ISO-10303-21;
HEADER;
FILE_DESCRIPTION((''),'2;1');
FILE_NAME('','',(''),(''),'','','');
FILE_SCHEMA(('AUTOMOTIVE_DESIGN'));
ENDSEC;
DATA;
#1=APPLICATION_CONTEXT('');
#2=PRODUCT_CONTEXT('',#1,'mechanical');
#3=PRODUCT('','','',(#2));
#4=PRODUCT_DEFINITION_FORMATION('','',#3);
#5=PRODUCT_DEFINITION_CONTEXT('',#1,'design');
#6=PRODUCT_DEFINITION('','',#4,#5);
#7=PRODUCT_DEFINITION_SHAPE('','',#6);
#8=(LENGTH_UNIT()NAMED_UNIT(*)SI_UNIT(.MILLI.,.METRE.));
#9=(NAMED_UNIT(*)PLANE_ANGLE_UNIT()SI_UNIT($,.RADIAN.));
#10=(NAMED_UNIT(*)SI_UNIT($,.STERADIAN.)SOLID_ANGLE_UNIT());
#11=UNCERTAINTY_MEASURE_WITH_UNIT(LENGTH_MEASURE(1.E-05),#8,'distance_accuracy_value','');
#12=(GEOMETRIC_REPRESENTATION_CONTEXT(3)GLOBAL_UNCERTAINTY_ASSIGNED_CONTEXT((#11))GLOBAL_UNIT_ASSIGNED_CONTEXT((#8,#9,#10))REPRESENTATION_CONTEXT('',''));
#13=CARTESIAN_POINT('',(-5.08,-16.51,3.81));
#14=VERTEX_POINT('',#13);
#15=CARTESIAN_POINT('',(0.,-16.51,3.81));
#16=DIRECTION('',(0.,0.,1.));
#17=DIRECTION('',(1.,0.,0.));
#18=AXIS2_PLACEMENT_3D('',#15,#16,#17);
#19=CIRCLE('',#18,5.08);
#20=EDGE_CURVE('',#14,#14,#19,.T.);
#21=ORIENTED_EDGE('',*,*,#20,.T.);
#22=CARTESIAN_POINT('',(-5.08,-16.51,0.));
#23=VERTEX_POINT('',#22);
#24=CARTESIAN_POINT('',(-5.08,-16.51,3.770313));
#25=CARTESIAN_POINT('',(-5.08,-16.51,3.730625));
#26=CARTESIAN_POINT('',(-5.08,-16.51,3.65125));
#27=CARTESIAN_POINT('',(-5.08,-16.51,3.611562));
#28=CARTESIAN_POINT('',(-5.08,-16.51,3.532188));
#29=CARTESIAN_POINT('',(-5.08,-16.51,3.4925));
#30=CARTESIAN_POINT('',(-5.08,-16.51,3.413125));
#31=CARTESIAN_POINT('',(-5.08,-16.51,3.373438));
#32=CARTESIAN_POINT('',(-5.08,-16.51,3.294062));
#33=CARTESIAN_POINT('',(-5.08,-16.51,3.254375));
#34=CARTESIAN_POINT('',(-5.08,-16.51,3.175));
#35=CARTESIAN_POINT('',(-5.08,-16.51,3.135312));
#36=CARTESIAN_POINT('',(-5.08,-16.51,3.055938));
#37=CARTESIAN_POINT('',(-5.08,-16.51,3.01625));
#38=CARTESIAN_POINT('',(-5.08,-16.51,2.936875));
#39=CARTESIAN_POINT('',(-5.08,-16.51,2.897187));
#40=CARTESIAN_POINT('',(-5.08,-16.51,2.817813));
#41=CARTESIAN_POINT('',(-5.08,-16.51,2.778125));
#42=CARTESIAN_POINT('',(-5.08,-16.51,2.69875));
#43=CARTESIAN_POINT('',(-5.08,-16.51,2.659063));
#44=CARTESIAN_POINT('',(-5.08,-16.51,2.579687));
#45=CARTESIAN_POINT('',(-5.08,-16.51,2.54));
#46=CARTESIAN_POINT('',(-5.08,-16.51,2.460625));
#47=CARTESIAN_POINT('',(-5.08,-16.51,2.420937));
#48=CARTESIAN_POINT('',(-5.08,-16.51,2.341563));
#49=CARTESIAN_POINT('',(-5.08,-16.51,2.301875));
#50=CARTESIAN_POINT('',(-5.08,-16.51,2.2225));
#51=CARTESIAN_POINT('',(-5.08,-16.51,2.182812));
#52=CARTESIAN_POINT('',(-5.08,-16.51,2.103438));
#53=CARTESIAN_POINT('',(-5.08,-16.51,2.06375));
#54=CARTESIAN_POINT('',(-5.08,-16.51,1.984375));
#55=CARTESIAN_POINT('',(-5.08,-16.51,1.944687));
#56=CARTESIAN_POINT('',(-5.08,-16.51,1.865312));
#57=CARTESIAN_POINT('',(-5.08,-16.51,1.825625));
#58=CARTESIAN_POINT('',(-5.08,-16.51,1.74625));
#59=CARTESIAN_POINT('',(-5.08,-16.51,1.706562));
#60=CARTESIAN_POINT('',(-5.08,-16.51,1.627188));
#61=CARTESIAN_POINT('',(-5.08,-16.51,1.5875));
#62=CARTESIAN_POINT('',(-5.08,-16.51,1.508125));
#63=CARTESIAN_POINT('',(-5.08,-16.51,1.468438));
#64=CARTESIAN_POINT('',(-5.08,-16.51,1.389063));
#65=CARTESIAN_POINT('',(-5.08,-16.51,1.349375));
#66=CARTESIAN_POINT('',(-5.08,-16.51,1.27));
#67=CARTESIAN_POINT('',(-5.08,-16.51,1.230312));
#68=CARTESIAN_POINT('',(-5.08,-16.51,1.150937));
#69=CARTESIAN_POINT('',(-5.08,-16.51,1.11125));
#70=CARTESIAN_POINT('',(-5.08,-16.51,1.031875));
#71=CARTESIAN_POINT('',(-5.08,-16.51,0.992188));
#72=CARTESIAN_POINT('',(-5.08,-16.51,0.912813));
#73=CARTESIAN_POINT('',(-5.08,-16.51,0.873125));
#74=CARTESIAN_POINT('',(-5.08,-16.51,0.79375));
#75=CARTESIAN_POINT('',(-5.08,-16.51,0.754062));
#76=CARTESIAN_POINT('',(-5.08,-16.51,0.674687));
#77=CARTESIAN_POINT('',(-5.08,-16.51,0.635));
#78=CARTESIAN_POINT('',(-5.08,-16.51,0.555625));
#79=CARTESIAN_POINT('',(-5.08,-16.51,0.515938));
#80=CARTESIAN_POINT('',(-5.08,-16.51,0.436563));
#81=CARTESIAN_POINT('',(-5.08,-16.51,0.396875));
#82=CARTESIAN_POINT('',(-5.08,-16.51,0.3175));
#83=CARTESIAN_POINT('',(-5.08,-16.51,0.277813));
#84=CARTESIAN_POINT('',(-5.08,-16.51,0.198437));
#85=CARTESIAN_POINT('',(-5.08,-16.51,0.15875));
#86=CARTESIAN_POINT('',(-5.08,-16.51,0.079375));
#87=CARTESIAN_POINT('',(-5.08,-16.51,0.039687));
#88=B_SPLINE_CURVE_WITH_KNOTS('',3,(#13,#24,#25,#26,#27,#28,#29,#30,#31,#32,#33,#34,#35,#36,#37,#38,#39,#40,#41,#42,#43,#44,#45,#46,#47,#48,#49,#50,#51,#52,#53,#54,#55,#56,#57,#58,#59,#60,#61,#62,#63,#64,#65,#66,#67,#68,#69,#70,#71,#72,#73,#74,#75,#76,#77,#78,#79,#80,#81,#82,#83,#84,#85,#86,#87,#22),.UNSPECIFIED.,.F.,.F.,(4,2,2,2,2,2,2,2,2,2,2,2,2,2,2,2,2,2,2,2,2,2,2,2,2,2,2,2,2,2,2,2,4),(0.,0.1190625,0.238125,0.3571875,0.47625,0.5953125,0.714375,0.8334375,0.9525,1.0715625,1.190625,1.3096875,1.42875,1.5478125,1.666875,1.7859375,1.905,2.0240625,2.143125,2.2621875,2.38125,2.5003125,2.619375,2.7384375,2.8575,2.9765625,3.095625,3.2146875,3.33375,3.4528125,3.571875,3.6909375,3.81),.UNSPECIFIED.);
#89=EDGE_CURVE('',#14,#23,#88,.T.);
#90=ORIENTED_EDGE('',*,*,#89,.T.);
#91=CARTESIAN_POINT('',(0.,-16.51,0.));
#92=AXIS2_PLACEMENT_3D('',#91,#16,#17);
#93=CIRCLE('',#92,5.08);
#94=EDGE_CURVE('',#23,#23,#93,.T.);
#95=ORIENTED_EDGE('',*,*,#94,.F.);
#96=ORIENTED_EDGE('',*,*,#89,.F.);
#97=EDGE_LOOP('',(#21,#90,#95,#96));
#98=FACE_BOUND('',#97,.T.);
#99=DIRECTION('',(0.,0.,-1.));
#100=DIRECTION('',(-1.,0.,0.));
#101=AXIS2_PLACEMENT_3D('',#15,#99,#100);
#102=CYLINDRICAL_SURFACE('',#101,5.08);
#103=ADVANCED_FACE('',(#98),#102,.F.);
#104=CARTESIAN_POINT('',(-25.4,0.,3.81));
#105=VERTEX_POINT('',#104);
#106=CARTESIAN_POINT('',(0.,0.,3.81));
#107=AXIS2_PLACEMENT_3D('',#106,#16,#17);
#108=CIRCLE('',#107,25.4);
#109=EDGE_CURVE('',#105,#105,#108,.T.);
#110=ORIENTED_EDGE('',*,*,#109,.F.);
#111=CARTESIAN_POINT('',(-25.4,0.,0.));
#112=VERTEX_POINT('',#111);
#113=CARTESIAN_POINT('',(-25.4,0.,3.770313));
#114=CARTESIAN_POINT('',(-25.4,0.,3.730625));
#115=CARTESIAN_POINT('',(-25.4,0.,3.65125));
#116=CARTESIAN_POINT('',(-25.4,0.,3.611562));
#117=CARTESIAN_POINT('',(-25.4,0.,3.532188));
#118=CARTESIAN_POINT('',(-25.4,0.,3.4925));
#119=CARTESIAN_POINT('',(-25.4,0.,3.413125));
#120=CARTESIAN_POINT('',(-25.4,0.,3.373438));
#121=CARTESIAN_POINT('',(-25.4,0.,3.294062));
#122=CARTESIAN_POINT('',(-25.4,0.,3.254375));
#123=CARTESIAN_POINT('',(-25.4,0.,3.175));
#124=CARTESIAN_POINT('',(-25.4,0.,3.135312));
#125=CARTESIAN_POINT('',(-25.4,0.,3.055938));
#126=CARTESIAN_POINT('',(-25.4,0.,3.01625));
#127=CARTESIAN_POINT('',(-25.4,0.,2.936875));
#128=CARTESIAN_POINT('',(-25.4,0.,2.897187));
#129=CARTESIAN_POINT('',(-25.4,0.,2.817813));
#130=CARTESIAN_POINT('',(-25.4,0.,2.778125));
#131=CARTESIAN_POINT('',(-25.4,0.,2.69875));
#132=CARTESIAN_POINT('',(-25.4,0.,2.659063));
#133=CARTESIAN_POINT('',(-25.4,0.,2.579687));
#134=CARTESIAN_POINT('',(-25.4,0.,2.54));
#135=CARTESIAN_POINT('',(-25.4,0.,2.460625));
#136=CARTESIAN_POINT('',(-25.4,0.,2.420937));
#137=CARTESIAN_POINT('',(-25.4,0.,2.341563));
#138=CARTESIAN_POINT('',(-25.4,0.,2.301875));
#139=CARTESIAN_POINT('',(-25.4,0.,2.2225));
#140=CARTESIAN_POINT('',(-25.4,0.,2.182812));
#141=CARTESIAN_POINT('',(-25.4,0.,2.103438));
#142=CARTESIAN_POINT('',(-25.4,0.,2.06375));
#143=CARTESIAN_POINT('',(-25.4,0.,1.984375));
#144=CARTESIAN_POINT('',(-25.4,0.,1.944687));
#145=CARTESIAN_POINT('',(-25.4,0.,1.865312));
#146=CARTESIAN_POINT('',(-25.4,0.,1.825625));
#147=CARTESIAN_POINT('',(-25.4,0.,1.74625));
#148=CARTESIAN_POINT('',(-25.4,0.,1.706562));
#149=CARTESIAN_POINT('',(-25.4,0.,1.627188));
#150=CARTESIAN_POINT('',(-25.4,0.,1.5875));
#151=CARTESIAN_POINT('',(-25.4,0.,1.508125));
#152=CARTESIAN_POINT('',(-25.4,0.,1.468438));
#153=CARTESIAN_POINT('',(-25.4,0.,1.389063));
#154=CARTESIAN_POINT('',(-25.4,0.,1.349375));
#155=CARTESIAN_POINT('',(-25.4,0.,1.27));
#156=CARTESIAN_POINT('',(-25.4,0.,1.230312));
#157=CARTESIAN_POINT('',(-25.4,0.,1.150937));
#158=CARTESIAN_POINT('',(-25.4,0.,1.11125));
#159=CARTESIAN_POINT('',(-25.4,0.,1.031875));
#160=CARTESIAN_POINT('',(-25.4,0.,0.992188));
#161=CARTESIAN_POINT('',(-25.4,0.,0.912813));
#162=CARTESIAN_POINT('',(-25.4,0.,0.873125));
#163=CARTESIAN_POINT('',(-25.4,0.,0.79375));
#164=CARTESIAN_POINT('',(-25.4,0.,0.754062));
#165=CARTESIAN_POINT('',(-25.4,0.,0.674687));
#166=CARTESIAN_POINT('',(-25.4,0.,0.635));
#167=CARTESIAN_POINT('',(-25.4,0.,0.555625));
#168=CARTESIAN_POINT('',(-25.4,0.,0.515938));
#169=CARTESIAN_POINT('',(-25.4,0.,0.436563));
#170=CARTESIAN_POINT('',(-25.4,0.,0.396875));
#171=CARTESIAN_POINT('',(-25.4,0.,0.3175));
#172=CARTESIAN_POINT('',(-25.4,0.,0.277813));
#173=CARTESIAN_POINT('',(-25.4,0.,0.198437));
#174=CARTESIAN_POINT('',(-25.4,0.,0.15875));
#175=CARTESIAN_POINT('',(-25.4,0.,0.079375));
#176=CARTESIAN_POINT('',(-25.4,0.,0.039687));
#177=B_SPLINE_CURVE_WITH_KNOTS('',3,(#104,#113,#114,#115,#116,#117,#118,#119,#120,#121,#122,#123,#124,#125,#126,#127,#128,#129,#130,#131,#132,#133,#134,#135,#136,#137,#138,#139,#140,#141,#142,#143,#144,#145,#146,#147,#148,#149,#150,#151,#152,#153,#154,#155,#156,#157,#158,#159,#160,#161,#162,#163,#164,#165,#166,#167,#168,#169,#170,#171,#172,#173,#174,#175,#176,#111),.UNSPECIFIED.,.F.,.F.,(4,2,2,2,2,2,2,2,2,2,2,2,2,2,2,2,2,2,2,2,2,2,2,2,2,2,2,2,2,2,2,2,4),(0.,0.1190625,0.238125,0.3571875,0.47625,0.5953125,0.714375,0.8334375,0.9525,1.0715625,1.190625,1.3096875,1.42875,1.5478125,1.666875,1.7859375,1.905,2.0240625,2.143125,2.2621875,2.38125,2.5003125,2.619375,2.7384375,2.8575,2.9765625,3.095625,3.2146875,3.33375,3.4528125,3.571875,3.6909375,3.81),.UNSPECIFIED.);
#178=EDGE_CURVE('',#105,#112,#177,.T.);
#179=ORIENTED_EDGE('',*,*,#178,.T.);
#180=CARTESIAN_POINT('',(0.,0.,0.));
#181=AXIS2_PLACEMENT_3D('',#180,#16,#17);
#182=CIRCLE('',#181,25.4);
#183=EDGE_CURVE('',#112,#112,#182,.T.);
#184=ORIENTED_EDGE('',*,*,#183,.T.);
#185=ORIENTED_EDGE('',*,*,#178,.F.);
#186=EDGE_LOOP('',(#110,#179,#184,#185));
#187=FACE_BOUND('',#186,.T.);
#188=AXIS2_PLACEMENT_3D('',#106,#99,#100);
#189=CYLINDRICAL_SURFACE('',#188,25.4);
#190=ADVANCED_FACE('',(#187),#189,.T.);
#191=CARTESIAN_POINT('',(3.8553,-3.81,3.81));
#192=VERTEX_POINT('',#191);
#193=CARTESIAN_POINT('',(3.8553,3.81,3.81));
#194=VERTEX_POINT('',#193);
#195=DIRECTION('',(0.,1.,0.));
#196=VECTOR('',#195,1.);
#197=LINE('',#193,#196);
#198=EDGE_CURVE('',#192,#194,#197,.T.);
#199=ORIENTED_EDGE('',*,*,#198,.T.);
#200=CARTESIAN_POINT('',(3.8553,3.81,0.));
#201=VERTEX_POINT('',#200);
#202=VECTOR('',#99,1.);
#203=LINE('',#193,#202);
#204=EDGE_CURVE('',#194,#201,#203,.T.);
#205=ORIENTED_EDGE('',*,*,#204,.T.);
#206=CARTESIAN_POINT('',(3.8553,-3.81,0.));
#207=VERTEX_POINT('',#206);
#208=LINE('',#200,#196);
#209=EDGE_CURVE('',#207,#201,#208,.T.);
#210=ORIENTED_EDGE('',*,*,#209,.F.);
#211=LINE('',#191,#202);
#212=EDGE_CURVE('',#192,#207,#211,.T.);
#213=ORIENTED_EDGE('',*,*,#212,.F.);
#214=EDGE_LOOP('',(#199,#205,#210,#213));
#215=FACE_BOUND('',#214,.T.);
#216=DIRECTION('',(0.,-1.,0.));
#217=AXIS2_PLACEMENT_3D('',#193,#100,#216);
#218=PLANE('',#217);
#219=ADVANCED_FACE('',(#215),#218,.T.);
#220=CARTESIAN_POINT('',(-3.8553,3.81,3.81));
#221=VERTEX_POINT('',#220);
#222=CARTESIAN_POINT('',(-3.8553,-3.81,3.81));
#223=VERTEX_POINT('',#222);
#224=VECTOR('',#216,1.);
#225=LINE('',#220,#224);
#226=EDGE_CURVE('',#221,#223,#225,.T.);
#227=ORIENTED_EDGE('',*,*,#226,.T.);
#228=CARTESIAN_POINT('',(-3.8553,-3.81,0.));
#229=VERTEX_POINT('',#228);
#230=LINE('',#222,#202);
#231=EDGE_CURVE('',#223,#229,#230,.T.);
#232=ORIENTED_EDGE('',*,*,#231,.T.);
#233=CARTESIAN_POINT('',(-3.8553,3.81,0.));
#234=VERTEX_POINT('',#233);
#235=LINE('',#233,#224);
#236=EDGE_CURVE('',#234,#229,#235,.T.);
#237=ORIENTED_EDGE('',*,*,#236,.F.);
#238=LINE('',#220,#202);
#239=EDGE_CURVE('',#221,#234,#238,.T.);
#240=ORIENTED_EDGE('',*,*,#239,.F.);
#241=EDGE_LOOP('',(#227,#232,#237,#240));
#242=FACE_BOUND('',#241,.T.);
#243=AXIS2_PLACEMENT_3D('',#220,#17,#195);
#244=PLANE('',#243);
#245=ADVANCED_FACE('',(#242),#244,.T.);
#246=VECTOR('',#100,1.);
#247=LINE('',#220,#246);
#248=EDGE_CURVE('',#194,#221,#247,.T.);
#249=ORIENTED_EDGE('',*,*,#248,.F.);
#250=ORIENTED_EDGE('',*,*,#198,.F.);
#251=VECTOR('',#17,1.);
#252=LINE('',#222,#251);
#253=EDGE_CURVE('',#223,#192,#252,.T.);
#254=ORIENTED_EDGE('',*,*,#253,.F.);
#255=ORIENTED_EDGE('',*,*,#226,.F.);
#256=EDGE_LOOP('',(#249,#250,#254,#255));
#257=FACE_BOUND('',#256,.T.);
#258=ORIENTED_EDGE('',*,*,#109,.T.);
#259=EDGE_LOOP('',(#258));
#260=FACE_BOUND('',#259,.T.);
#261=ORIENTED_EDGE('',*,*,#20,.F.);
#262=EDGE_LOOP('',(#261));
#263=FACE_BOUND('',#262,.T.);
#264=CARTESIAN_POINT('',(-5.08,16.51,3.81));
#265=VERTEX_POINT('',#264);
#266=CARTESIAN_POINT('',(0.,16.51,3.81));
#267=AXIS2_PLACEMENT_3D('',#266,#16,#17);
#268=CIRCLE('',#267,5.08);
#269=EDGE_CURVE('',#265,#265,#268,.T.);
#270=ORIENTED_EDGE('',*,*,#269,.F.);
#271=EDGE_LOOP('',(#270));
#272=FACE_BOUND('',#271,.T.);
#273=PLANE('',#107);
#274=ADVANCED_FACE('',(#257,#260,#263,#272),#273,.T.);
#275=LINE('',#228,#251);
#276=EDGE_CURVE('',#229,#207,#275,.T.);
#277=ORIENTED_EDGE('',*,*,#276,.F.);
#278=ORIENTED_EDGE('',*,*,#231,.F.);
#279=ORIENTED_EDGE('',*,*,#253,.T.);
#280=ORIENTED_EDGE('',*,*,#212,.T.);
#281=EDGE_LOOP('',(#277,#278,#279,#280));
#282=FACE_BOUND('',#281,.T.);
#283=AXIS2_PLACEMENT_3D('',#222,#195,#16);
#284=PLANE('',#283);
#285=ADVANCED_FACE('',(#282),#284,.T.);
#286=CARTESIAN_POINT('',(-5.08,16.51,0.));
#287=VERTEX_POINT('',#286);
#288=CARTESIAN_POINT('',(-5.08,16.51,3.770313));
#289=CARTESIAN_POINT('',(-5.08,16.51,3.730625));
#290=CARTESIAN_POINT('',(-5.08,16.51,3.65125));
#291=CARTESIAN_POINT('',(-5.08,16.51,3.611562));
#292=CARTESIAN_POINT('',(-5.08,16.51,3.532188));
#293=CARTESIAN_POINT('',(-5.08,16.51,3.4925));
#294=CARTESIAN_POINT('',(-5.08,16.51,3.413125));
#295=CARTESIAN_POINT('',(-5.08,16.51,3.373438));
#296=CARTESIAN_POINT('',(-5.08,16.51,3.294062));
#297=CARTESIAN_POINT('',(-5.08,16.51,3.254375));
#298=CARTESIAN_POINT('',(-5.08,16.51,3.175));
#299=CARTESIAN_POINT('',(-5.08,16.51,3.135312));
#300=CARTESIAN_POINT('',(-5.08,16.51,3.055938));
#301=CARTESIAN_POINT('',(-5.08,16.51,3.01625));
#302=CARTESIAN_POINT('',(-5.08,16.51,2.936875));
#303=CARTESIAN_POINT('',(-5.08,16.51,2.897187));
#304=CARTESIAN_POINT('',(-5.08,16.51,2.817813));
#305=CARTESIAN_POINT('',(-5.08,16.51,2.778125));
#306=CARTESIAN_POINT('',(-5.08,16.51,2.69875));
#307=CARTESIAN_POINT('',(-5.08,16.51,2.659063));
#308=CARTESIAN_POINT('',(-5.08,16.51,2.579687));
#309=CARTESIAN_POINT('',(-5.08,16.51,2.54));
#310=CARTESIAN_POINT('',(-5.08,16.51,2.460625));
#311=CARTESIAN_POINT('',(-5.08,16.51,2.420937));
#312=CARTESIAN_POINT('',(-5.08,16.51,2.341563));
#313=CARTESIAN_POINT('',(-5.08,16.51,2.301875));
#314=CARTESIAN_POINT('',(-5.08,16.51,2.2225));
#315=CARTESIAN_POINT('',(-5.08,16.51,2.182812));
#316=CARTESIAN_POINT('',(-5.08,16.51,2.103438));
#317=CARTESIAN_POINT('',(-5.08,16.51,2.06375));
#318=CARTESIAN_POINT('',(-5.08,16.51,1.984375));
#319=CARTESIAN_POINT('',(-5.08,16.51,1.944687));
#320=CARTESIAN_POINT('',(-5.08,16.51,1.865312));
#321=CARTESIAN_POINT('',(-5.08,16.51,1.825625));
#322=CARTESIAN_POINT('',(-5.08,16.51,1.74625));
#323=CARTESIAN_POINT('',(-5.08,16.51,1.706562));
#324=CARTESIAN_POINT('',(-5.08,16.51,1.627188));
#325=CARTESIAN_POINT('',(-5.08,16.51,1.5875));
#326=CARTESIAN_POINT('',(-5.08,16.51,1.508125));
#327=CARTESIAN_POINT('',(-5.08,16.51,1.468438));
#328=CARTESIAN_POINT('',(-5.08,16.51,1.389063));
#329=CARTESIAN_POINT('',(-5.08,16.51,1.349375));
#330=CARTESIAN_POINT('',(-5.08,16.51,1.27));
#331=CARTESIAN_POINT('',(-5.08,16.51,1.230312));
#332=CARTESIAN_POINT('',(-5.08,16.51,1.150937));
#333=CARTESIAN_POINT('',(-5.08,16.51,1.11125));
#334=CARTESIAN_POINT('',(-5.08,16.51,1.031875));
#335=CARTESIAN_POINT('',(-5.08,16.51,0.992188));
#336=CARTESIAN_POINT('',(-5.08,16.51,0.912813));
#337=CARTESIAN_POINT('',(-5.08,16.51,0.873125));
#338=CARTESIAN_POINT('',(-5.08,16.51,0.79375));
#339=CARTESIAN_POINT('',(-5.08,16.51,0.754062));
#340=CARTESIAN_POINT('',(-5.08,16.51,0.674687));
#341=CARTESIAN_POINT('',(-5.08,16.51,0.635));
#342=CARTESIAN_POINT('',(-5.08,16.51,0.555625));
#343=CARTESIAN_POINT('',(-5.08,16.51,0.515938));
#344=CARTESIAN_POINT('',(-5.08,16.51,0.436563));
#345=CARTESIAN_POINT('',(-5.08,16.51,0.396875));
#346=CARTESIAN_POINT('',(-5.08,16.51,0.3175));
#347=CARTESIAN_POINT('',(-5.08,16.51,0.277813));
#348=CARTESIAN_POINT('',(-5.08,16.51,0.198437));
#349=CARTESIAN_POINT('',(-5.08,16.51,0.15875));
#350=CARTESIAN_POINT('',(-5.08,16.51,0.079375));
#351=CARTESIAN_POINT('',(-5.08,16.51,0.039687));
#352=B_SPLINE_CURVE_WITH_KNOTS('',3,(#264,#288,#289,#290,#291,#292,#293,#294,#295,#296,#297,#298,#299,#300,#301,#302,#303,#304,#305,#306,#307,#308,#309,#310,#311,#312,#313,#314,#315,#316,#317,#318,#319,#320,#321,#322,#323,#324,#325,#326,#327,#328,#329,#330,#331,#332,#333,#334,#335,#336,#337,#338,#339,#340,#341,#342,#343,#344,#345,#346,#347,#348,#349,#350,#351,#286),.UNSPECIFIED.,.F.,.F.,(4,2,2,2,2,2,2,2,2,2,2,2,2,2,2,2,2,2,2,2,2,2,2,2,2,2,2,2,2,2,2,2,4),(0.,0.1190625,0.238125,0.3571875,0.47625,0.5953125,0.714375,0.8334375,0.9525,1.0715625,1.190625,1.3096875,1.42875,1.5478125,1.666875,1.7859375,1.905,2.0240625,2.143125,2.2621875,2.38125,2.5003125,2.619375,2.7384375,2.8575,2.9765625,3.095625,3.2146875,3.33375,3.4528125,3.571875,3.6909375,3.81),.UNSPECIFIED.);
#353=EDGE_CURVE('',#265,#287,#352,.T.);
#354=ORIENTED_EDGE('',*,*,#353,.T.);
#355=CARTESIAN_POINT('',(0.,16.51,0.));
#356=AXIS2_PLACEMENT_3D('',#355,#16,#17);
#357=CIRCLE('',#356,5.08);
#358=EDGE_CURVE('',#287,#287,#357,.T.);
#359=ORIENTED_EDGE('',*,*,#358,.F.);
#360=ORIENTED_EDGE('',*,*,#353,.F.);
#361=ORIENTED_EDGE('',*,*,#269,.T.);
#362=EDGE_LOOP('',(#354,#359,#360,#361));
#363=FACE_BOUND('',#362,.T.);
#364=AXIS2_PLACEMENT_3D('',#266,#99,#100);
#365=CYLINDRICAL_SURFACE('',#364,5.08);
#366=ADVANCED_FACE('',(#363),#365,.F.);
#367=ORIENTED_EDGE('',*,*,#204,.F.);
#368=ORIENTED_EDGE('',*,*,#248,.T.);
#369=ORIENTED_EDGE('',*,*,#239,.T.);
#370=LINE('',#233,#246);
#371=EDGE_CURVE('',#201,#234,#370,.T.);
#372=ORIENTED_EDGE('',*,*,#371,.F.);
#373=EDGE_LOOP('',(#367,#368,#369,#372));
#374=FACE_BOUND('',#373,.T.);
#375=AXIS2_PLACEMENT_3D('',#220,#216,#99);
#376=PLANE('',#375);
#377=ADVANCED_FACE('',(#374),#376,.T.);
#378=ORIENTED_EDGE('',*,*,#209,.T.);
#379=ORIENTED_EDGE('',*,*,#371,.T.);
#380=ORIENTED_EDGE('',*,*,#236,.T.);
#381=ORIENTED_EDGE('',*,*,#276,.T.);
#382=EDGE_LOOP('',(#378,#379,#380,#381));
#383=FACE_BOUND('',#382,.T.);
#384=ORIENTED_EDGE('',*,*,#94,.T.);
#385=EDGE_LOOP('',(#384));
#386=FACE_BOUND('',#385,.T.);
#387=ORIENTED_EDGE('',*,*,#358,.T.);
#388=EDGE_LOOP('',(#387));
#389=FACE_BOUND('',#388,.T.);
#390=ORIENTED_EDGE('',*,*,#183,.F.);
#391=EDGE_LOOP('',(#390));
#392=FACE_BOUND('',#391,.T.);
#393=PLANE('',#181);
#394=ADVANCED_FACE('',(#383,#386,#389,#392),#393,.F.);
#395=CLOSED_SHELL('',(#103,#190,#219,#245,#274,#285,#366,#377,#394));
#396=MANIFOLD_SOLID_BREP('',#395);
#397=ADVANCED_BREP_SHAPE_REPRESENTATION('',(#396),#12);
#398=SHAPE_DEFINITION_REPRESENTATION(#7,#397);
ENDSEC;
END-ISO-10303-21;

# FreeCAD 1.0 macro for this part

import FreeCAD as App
import Part
import Sketcher
Q = App.Units.Quantity

doc = App.newDocument("Part")
params = doc.addObject("Spreadsheet::Sheet", "Params")
for row, (alias, value) in enumerate([
    ("sketch1_diameter", "2 in"),
    ("sketch1_diameter2", "0.4 in"),
    ("sketch1_height", "0.3 in"),
    ("pad1_length", "0.15 in"),
], start=1):
    params.set(f"A{row}", alias)
    params.set(f"B{row}", "=" + value)
    params.setAlias(f"B{row}", alias)

body = doc.addObject("PartDesign::Body", "Body")

# Sketch on XY plane
sketch1 = body.newObject("Sketcher::SketchObject", "Sketch")
sketch1.AttachmentSupport = (doc.getObject("XY_Plane"), [""])
sketch1.MapMode = "FlatFace"
sketch1.addGeometry([
    Part.Circle(App.Vector(0, 0, 0), App.Vector(0, 0, 1), 25),  # 0
    Part.Circle(App.Vector(0, 17, 0), App.Vector(0, 0, 1), 5),  # 1
    Part.Circle(App.Vector(0, -17, 0), App.Vector(0, 0, 1), 5),  # 2
    Part.LineSegment(App.Vector(4, -4, 0), App.Vector(-4, -4, 0)),  # 3
    Part.LineSegment(App.Vector(-4, -4, 0), App.Vector(-4, 4, 0)),  # 4
    Part.LineSegment(App.Vector(-4, 4, 0), App.Vector(4, 4, 0)),  # 5
    Part.LineSegment(App.Vector(4, 4, 0), App.Vector(4, -4, 0)),  # 6
], False)
sketch1.addConstraint([
    Sketcher.Constraint("Coincident", 3, 2, 4, 1),
    Sketcher.Constraint("Coincident", 4, 2, 5, 1),
    Sketcher.Constraint("Coincident", 5, 2, 6, 1),
    Sketcher.Constraint("Coincident", 6, 2, 3, 1),
    Sketcher.Constraint("Horizontal", 3),
    Sketcher.Constraint("Vertical", 4),
    Sketcher.Constraint("Horizontal", 5),
    Sketcher.Constraint("Vertical", 6),
    Sketcher.Constraint("Coincident", 0, 3, -1, 1),
    Sketcher.Constraint("Equal", 1, 2),
    Sketcher.Constraint("Symmetric", 1, 3, 2, 3, -1, 1),
    Sketcher.Constraint("Symmetric", 3, 2, 5, 2, -1, 1),
    Sketcher.Constraint("PointOnObject", 1, 3, -2),
    Sketcher.Constraint("Diameter", 0, Q("2 in")),
    Sketcher.Constraint("Diameter", 1, Q("0.4 in")),
    Sketcher.Constraint("DistanceY", 4, 1, 4, 2, Q("0.3 in")),
    Sketcher.Constraint("DistanceY", 2, 3, 1, 3, Q("1.3 in")),
    Sketcher.Constraint("DistanceX", 3, 2, 3, 1, Q("7.7106 mm")),
])
sketch1.setExpression("Constraints[13]", "Params.sketch1_diameter")
sketch1.setExpression("Constraints[14]", "Params.sketch1_diameter2")
sketch1.setExpression("Constraints[15]", "Params.sketch1_height")
pad1 = body.newObject("PartDesign::Pad", "Pad")
pad1.Profile = sketch1
pad1.setExpression("Length", "Params.pad1_length")

doc.recompute()
